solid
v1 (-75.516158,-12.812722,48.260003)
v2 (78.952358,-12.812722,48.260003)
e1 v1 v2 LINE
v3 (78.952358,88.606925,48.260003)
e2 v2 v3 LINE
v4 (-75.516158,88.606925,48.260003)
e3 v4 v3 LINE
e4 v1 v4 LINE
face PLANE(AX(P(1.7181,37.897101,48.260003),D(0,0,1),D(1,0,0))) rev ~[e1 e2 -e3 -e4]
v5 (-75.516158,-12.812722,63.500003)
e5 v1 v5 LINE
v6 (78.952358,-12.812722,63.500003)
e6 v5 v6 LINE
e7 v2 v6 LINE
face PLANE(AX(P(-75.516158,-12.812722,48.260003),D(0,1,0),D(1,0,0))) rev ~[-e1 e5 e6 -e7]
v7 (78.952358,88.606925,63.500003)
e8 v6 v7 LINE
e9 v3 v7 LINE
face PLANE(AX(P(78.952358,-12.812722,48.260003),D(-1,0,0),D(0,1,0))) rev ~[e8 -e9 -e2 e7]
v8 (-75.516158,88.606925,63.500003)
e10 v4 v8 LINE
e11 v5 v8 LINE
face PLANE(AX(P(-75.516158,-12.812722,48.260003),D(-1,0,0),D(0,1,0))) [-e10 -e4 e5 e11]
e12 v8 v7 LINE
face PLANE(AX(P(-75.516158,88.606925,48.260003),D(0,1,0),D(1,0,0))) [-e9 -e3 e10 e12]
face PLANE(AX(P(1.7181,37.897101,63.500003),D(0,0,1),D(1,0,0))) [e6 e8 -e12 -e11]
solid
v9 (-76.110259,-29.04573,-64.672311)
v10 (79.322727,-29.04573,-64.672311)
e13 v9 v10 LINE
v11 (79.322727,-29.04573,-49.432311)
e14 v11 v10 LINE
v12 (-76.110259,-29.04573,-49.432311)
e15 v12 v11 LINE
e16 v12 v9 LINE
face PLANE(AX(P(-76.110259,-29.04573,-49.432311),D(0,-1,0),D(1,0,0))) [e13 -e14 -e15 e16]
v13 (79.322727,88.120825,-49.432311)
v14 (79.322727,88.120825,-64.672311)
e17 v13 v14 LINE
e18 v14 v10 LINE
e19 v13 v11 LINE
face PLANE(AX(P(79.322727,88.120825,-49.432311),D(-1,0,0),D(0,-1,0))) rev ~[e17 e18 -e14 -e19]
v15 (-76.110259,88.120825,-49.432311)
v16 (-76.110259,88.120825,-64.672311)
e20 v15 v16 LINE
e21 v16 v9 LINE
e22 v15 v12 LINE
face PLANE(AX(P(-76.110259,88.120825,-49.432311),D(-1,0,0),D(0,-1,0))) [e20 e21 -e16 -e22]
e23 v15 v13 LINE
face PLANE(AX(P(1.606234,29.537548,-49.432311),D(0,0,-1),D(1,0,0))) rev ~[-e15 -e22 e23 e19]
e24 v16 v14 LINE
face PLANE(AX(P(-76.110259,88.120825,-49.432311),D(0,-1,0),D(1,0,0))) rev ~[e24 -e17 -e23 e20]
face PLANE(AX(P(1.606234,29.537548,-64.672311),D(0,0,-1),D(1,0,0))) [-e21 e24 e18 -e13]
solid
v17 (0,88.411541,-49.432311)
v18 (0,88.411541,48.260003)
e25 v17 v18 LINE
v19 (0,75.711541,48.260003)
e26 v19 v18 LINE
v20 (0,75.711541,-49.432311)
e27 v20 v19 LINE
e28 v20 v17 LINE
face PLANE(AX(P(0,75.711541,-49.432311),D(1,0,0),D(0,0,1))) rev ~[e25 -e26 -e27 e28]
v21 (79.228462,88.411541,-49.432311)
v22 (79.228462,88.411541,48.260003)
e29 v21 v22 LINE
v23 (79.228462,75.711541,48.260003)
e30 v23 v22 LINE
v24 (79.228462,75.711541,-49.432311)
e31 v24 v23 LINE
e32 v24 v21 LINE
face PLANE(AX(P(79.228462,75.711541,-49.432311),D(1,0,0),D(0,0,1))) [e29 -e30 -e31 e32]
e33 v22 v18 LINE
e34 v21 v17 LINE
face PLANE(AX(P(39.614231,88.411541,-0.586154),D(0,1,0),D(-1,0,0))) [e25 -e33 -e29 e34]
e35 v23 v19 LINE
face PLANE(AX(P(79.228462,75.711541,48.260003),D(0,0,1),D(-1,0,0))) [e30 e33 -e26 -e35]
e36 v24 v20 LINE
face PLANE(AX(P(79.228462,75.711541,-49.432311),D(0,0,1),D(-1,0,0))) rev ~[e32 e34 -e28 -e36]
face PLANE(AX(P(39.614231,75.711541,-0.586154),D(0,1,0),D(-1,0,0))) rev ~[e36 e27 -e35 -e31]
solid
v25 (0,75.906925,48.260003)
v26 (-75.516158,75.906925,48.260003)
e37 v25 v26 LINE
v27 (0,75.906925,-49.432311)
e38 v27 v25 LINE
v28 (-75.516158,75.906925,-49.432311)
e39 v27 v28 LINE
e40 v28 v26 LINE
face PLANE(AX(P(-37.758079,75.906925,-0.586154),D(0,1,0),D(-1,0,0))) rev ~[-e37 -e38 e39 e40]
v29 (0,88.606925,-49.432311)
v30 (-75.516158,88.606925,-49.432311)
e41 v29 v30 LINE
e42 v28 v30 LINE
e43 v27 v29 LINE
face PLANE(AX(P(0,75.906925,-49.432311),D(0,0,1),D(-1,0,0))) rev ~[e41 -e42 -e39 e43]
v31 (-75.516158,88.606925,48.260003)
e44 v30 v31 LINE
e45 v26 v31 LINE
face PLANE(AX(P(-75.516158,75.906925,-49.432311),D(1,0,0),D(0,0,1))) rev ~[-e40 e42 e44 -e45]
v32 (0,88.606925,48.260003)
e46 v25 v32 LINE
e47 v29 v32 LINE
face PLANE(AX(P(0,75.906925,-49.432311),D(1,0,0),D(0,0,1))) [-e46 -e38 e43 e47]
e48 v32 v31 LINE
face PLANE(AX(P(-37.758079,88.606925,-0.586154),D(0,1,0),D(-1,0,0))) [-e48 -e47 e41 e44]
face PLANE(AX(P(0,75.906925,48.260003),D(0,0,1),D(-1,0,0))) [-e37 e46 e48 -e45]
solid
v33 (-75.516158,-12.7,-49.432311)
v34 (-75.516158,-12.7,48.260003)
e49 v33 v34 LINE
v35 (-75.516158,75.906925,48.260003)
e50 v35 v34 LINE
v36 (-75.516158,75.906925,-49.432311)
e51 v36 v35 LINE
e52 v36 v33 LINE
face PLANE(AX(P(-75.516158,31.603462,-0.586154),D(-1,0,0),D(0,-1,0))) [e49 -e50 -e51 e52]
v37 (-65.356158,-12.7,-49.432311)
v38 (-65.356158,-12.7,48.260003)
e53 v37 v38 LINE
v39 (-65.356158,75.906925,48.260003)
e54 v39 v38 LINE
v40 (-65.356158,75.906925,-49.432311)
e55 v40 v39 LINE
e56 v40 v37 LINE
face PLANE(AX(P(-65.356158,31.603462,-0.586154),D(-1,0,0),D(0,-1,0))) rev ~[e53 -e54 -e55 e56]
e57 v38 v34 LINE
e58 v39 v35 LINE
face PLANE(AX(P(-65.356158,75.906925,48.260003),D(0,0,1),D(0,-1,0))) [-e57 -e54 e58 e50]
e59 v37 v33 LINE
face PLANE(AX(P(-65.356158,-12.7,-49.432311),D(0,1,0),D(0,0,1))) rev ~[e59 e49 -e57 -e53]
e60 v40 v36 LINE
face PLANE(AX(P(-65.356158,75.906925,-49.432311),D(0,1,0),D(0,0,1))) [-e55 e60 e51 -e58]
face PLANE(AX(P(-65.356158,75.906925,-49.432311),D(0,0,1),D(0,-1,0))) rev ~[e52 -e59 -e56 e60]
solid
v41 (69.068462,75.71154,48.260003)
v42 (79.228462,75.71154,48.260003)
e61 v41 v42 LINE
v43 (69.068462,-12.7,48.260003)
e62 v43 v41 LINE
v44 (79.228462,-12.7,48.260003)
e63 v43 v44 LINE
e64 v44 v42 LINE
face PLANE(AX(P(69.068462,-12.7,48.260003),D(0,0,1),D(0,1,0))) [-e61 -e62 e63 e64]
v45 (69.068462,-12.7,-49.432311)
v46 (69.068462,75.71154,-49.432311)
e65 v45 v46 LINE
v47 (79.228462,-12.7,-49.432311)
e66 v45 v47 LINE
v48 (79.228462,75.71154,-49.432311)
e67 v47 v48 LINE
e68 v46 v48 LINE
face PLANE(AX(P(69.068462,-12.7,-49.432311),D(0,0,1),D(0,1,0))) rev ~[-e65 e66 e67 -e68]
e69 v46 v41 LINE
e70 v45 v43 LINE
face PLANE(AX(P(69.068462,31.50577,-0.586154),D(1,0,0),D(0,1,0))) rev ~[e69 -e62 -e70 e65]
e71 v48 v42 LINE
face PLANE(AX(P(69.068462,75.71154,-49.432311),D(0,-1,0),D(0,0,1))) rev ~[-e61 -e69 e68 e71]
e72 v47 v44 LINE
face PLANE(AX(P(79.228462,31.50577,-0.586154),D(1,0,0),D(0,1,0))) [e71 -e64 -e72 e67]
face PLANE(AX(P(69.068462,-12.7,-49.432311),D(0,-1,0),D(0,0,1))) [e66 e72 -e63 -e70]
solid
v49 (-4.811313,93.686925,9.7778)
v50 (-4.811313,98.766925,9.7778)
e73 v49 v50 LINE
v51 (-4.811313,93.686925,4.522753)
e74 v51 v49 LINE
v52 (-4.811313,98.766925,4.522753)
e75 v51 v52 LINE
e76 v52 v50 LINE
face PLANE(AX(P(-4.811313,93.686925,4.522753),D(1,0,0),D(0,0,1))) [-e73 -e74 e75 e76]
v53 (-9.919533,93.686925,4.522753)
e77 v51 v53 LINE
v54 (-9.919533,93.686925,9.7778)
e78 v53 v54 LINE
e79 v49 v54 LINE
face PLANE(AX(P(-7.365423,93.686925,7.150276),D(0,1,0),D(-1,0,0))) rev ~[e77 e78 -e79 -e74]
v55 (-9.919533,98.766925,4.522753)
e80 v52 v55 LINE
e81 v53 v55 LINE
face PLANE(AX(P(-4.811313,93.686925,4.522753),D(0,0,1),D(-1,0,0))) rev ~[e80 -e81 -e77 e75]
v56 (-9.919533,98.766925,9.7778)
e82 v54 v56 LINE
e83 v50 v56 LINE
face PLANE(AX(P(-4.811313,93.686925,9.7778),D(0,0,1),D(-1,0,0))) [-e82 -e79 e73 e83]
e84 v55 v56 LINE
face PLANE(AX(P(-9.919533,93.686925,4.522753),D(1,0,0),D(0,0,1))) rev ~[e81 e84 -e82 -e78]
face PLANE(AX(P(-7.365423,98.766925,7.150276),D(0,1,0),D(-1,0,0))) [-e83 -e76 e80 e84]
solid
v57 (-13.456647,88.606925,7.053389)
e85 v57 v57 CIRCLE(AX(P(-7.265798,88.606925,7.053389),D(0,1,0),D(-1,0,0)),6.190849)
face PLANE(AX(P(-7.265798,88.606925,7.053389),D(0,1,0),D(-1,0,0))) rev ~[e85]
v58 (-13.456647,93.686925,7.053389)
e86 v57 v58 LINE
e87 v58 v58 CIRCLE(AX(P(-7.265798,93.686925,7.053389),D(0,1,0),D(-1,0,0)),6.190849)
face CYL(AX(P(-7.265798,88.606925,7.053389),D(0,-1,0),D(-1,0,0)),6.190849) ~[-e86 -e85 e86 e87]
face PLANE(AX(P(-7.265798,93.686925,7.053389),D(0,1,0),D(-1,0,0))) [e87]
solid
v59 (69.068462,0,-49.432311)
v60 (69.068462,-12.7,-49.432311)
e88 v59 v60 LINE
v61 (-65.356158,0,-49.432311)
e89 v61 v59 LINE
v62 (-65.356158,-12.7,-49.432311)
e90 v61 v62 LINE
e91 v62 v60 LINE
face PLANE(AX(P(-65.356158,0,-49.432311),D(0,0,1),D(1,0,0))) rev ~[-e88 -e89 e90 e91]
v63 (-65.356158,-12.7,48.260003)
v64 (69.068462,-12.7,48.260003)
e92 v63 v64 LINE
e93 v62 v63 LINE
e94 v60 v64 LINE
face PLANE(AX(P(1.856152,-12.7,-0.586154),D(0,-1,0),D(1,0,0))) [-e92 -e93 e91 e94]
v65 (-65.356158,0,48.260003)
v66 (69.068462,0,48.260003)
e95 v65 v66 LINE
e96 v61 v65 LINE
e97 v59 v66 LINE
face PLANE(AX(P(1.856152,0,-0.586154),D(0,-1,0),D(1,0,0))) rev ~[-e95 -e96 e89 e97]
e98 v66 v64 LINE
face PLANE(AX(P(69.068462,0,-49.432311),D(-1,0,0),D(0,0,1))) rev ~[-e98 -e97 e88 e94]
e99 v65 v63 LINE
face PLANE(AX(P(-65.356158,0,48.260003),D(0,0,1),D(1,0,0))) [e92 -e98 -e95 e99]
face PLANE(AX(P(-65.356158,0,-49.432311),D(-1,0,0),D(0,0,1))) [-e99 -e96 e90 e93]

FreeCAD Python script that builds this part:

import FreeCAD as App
import Part
import Sketcher
Q = App.Units.Quantity

doc = App.newDocument("Part")
body = doc.addObject("PartDesign::Body", "Body")

# Sketch on XZ plane
sketch1 = doc.addObject("Sketcher::SketchObject", "Sketch")
body.addObject(sketch1)
sketch1.AttachmentSupport = (doc.XZ_Plane, [""])
sketch1.MapMode = "FlatFace"
sketch1.addGeometry(Part.LineSegment(App.Vector(-65, 48, 0), App.Vector(-65, -49, 0)), False)
sketch1.addGeometry(Part.LineSegment(App.Vector(-65, -49, 0), App.Vector(69, -49, 0)), False)
sketch1.addGeometry(Part.LineSegment(App.Vector(69, -49, 0), App.Vector(69, 48, 0)), False)
sketch1.addGeometry(Part.LineSegment(App.Vector(69, 48, 0), App.Vector(-65, 48, 0)), False)
sketch1.addConstraint(Sketcher.Constraint("Coincident", 0, 2, 1, 1))
sketch1.addConstraint(Sketcher.Constraint("Coincident", 1, 2, 2, 1))
sketch1.addConstraint(Sketcher.Constraint("Coincident", 2, 2, 3, 1))
sketch1.addConstraint(Sketcher.Constraint("Coincident", 3, 2, 0, 1))
sketch1.addConstraint(Sketcher.Constraint("Vertical", 0))
sketch1.addConstraint(Sketcher.Constraint("Horizontal", 1))
sketch1.addConstraint(Sketcher.Constraint("Vertical", 2))
sketch1.addConstraint(Sketcher.Constraint("Horizontal", 3))
sketch1.addConstraint(Sketcher.Constraint("DistanceY", -1, 1, 2, 2, Q("1.9000001 in")))
sketch1.addConstraint(Sketcher.Constraint("DistanceX", 1, 1, 1, 2, Q("134.42462 mm")))
sketch1.addConstraint(Sketcher.Constraint("DistanceY", 0, 2, 0, 1, Q("97.692314 mm")))
sketch1.addConstraint(Sketcher.Constraint("DistanceX", -1, 1, 1, 2, Q("69.068462 mm")))
pad1 = doc.addObject("PartDesign::Pad", "Pad")
body.addObject(pad1)
pad1.Profile = sketch1
pad1.Length = Q("0.5 in")
body2 = doc.addObject("PartDesign::Body", "Body001")

# Sketch on YZ plane
sketch2 = doc.addObject("Sketcher::SketchObject", "Sketch001")
body2.addObject(sketch2)
sketch2.AttachmentSupport = (doc.getObject("YZ_Plane001"), [""])
sketch2.MapMode = "FlatFace"
sketch2.AttachmentOffset = App.Placement(App.Vector(0, 0, 69.068462), App.Rotation())
sketch2.addGeometry(Part.LineSegment(App.Vector(-13, 48, 0), App.Vector(-13, -49, 0)), False)
sketch2.addGeometry(Part.LineSegment(App.Vector(-13, -49, 0), App.Vector(76, -49, 0)), False)
sketch2.addGeometry(Part.LineSegment(App.Vector(76, -49, 0), App.Vector(76, 48, 0)), False)
sketch2.addGeometry(Part.LineSegment(App.Vector(76, 48, 0), App.Vector(-13, 48, 0)), False)
sketch2.addConstraint(Sketcher.Constraint("Coincident", 0, 2, 1, 1))
sketch2.addConstraint(Sketcher.Constraint("Coincident", 1, 2, 2, 1))
sketch2.addConstraint(Sketcher.Constraint("Coincident", 2, 2, 3, 1))
sketch2.addConstraint(Sketcher.Constraint("Coincident", 3, 2, 0, 1))
sketch2.addConstraint(Sketcher.Constraint("Vertical", 0))
sketch2.addConstraint(Sketcher.Constraint("Horizontal", 1))
sketch2.addConstraint(Sketcher.Constraint("Vertical", 2))
sketch2.addConstraint(Sketcher.Constraint("Horizontal", 3))
sketch2.addConstraint(Sketcher.Constraint("DistanceX", 0, 2, -1, 1, Q("0.5 in")))
sketch2.addConstraint(Sketcher.Constraint("DistanceY", -1, 1, 2, 2, Q("1.9000001 in")))
sketch2.addConstraint(Sketcher.Constraint("DistanceX", 1, 1, 1, 2, Q("88.411541 mm")))
sketch2.addConstraint(Sketcher.Constraint("DistanceY", 0, 2, 0, 1, Q("97.692314 mm")))
pad2 = doc.addObject("PartDesign::Pad", "Pad001")
body2.addObject(pad2)
pad2.Profile = sketch2
pad2.Length = Q("0.4 in")
body3 = doc.addObject("PartDesign::Body", "Body002")

# Sketch on YZ plane
sketch3 = doc.addObject("Sketcher::SketchObject", "Sketch002")
body3.addObject(sketch3)
sketch3.AttachmentSupport = (doc.getObject("YZ_Plane002"), [""])
sketch3.MapMode = "FlatFace"
sketch3.AttachmentOffset = App.Placement(App.Vector(0, 0, -65.356158), App.Rotation())
sketch3.addGeometry(Part.LineSegment(App.Vector(76, 48, 0), App.Vector(76, -49, 0)), False)
sketch3.addGeometry(Part.LineSegment(App.Vector(76, -49, 0), App.Vector(-13, -49, 0)), False)
sketch3.addGeometry(Part.LineSegment(App.Vector(-13, -49, 0), App.Vector(-13, 48, 0)), False)
sketch3.addGeometry(Part.LineSegment(App.Vector(-13, 48, 0), App.Vector(76, 48, 0)), False)
sketch3.addConstraint(Sketcher.Constraint("Coincident", 0, 2, 1, 1))
sketch3.addConstraint(Sketcher.Constraint("Coincident", 1, 2, 2, 1))
sketch3.addConstraint(Sketcher.Constraint("Coincident", 2, 2, 3, 1))
sketch3.addConstraint(Sketcher.Constraint("Coincident", 3, 2, 0, 1))
sketch3.addConstraint(Sketcher.Constraint("Vertical", 0))
sketch3.addConstraint(Sketcher.Constraint("Horizontal", 1))
sketch3.addConstraint(Sketcher.Constraint("Vertical", 2))
sketch3.addConstraint(Sketcher.Constraint("Horizontal", 3))
sketch3.addConstraint(Sketcher.Constraint("DistanceX", 1, 2, -1, 1, Q("0.5 in")))
sketch3.addConstraint(Sketcher.Constraint("DistanceY", -1, 1, 2, 2, Q("1.9000001 in")))
sketch3.addConstraint(Sketcher.Constraint("DistanceX", 1, 2, 1, 1, Q("88.606925 mm")))
sketch3.addConstraint(Sketcher.Constraint("DistanceY", 0, 2, 0, 1, Q("97.692314 mm")))
pad3 = doc.addObject("PartDesign::Pad", "Pad002")
body3.addObject(pad3)
pad3.Profile = sketch3
pad3.Length = Q("0.4 in")
pad3.Reversed = True
body4 = doc.addObject("PartDesign::Body", "Body003")

# Sketch on XZ plane
sketch4 = doc.addObject("Sketcher::SketchObject", "Sketch003")
body4.addObject(sketch4)
sketch4.AttachmentSupport = (doc.getObject("XZ_Plane003"), [""])
sketch4.MapMode = "FlatFace"
sketch4.AttachmentOffset = App.Placement(App.Vector(0, 0, -75.711541), App.Rotation())
sketch4.addGeometry(Part.LineSegment(App.Vector(79, 48, 0), App.Vector(79, -49, 0)), False)
sketch4.addGeometry(Part.LineSegment(App.Vector(79, -49, 0), App.Vector(0, -49, 0)), False)
sketch4.addGeometry(Part.LineSegment(App.Vector(0, -49, 0), App.Vector(0, 48, 0)), False)
sketch4.addGeometry(Part.LineSegment(App.Vector(0, 48, 0), App.Vector(79, 48, 0)), False)
sketch4.addConstraint(Sketcher.Constraint("Coincident", 0, 2, 1, 1))
sketch4.addConstraint(Sketcher.Constraint("Coincident", 1, 2, 2, 1))
sketch4.addConstraint(Sketcher.Constraint("Coincident", 2, 2, 3, 1))
sketch4.addConstraint(Sketcher.Constraint("Coincident", 3, 2, 0, 1))
sketch4.addConstraint(Sketcher.Constraint("Vertical", 0))
sketch4.addConstraint(Sketcher.Constraint("Horizontal", 1))
sketch4.addConstraint(Sketcher.Constraint("Vertical", 2))
sketch4.addConstraint(Sketcher.Constraint("Horizontal", 3))
sketch4.addConstraint(Sketcher.Constraint("PointOnObject", 1, 2, -2))
sketch4.addConstraint(Sketcher.Constraint("DistanceY", -1, 1, 2, 2, Q("1.9000001 in")))
sketch4.addConstraint(Sketcher.Constraint("DistanceX", 1, 2, 1, 1, Q("79.228462 mm")))
sketch4.addConstraint(Sketcher.Constraint("DistanceY", 0, 2, 0, 1, Q("97.692314 mm")))
pad4 = doc.addObject("PartDesign::Pad", "Pad003")
body4.addObject(pad4)
pad4.Profile = sketch4
pad4.Length = Q("0.5 in")
pad4.Reversed = True
body5 = doc.addObject("PartDesign::Body", "Body004")

# Sketch on XZ plane
sketch5 = doc.addObject("Sketcher::SketchObject", "Sketch004")
body5.addObject(sketch5)
sketch5.AttachmentSupport = (doc.getObject("XZ_Plane004"), [""])
sketch5.MapMode = "FlatFace"
sketch5.AttachmentOffset = App.Placement(App.Vector(0, 0, -75.906925), App.Rotation())
sketch5.addGeometry(Part.LineSegment(App.Vector(0, 48, 0), App.Vector(0, -49, 0)), False)
sketch5.addGeometry(Part.LineSegment(App.Vector(0, -49, 0), App.Vector(-76, -49, 0)), False)
sketch5.addGeometry(Part.LineSegment(App.Vector(-76, -49, 0), App.Vector(-76, 48, 0)), False)
sketch5.addGeometry(Part.LineSegment(App.Vector(-76, 48, 0), App.Vector(0, 48, 0)), False)
sketch5.addConstraint(Sketcher.Constraint("Coincident", 0, 2, 1, 1))
sketch5.addConstraint(Sketcher.Constraint("Coincident", 1, 2, 2, 1))
sketch5.addConstraint(Sketcher.Constraint("Coincident", 2, 2, 3, 1))
sketch5.addConstraint(Sketcher.Constraint("Coincident", 3, 2, 0, 1))
sketch5.addConstraint(Sketcher.Constraint("Vertical", 0))
sketch5.addConstraint(Sketcher.Constraint("Horizontal", 1))
sketch5.addConstraint(Sketcher.Constraint("Vertical", 2))
sketch5.addConstraint(Sketcher.Constraint("Horizontal", 3))
sketch5.addConstraint(Sketcher.Constraint("PointOnObject", 0, 2, -2))
sketch5.addConstraint(Sketcher.Constraint("DistanceY", -1, 1, 2, 2, Q("1.9000001 in")))
sketch5.addConstraint(Sketcher.Constraint("DistanceX", 1, 2, 1, 1, Q("75.516158 mm")))
sketch5.addConstraint(Sketcher.Constraint("DistanceY", 0, 2, 0, 1, Q("97.692314 mm")))
pad5 = doc.addObject("PartDesign::Pad", "Pad004")
body5.addObject(pad5)
pad5.Profile = sketch5
pad5.Length = Q("0.5 in")
pad5.Reversed = True
body6 = doc.addObject("PartDesign::Body", "Body005")

# Sketch on XY plane
sketch6 = doc.addObject("Sketcher::SketchObject", "Sketch005")
body6.addObject(sketch6)
sketch6.AttachmentSupport = (doc.getObject("XY_Plane005"), [""])
sketch6.MapMode = "FlatFace"
sketch6.AttachmentOffset = App.Placement(App.Vector(0, 0, 1.9000001 * 25.4), App.Rotation())
sketch6.addGeometry(Part.LineSegment(App.Vector(-76, 89, 0), App.Vector(-76, -13, 0)), False)
sketch6.addGeometry(Part.LineSegment(App.Vector(-76, -13, 0), App.Vector(79, -13, 0)), False)
sketch6.addGeometry(Part.LineSegment(App.Vector(79, -13, 0), App.Vector(79, 89, 0)), False)
sketch6.addGeometry(Part.LineSegment(App.Vector(79, 89, 0), App.Vector(-76, 89, 0)), False)
sketch6.addConstraint(Sketcher.Constraint("Coincident", 0, 2, 1, 1))
sketch6.addConstraint(Sketcher.Constraint("Coincident", 1, 2, 2, 1))
sketch6.addConstraint(Sketcher.Constraint("Coincident", 2, 2, 3, 1))
sketch6.addConstraint(Sketcher.Constraint("Coincident", 3, 2, 0, 1))
sketch6.addConstraint(Sketcher.Constraint("Vertical", 0))
sketch6.addConstraint(Sketcher.Constraint("Horizontal", 1))
sketch6.addConstraint(Sketcher.Constraint("Vertical", 2))
sketch6.addConstraint(Sketcher.Constraint("Horizontal", 3))
sketch6.addConstraint(Sketcher.Constraint("DistanceX", 1, 1, 1, 2, Q("154.468515 mm")))
sketch6.addConstraint(Sketcher.Constraint("DistanceY", 0, 2, 0, 1, Q("101.419647 mm")))
sketch6.addConstraint(Sketcher.Constraint("DistanceX", 0, 2, -1, 1, Q("75.516158 mm")))
sketch6.addConstraint(Sketcher.Constraint("DistanceY", 0, 2, -1, 1, Q("12.812722 mm")))
pad6 = doc.addObject("PartDesign::Pad", "Pad005")
body6.addObject(pad6)
pad6.Profile = sketch6
pad6.Length = Q("0.6 in")
body7 = doc.addObject("PartDesign::Body", "Body006")

# Sketch on XY plane
sketch7 = doc.addObject("Sketcher::SketchObject", "Sketch006")
body7.addObject(sketch7)
sketch7.AttachmentSupport = (doc.getObject("XY_Plane006"), [""])
sketch7.MapMode = "FlatFace"
sketch7.AttachmentOffset = App.Placement(App.Vector(0, 0, -49.432311), App.Rotation())
sketch7.addGeometry(Part.LineSegment(App.Vector(-76, -29, 0), App.Vector(-76, 88, 0)), False)
sketch7.addGeometry(Part.LineSegment(App.Vector(-76, 88, 0), App.Vector(79, 88, 0)), False)
sketch7.addGeometry(Part.LineSegment(App.Vector(79, 88, 0), App.Vector(79, -29, 0)), False)
sketch7.addGeometry(Part.LineSegment(App.Vector(79, -29, 0), App.Vector(-76, -29, 0)), False)
sketch7.addConstraint(Sketcher.Constraint("Coincident", 0, 2, 1, 1))
sketch7.addConstraint(Sketcher.Constraint("Coincident", 1, 2, 2, 1))
sketch7.addConstraint(Sketcher.Constraint("Coincident", 2, 2, 3, 1))
sketch7.addConstraint(Sketcher.Constraint("Coincident", 3, 2, 0, 1))
sketch7.addConstraint(Sketcher.Constraint("Vertical", 0))
sketch7.addConstraint(Sketcher.Constraint("Horizontal", 1))
sketch7.addConstraint(Sketcher.Constraint("Vertical", 2))
sketch7.addConstraint(Sketcher.Constraint("Horizontal", 3))
sketch7.addConstraint(Sketcher.Constraint("DistanceX", 1, 1, 1, 2, Q("155.432985 mm")))
sketch7.addConstraint(Sketcher.Constraint("DistanceY", 0, 1, 0, 2, Q("117.166555 mm")))
sketch7.addConstraint(Sketcher.Constraint("DistanceX", 0, 2, -1, 1, Q("76.110259 mm")))
sketch7.addConstraint(Sketcher.Constraint("DistanceY", 2, 2, -1, 1, Q("29.04573 mm")))
pad7 = doc.addObject("PartDesign::Pad", "Pad006")
body7.addObject(pad7)
pad7.Profile = sketch7
pad7.Length = Q("0.6 in")
pad7.Reversed = True
body8 = doc.addObject("PartDesign::Body", "Body007")

# Sketch on XZ plane
sketch8 = doc.addObject("Sketcher::SketchObject", "Sketch007")
body8.addObject(sketch8)
sketch8.AttachmentSupport = (doc.getObject("XZ_Plane007"), [""])
sketch8.MapMode = "FlatFace"
sketch8.AttachmentOffset = App.Placement(App.Vector(0, 0, -88.606925), App.Rotation())
sketch8.addGeometry(Part.Circle(App.Vector(-7, 7, 0), App.Vector(0, 0, 1), 6), False)
sketch8.addConstraint(Sketcher.Constraint("Diameter", 0, Q("12.381698 mm")))
sketch8.addConstraint(Sketcher.Constraint("DistanceX", 0, 3, -1, 1, Q("7.265798 mm")))
sketch8.addConstraint(Sketcher.Constraint("DistanceY", -1, 1, 0, 3, Q("7.053389 mm")))
pad8 = doc.addObject("PartDesign::Pad", "Pad007")
body8.addObject(pad8)
pad8.Profile = sketch8
pad8.Length = Q("0.2 in")
pad8.Reversed = True
body9 = doc.addObject("PartDesign::Body", "Body008")

# Sketch on XZ plane
sketch9 = doc.addObject("Sketcher::SketchObject", "Sketch008")
body9.addObject(sketch9)
sketch9.AttachmentSupport = (doc.getObject("XZ_Plane008"), [""])
sketch9.MapMode = "FlatFace"
sketch9.AttachmentOffset = App.Placement(App.Vector(0, 0, -93.686925), App.Rotation())
sketch9.addGeometry(Part.LineSegment(App.Vector(-5, 10, 0), App.Vector(-5, 5, 0)), False)
sketch9.addGeometry(Part.LineSegment(App.Vector(-5, 5, 0), App.Vector(-10, 5, 0)), False)
sketch9.addGeometry(Part.LineSegment(App.Vector(-10, 5, 0), App.Vector(-10, 10, 0)), False)
sketch9.addGeometry(Part.LineSegment(App.Vector(-10, 10, 0), App.Vector(-5, 10, 0)), False)
sketch9.addConstraint(Sketcher.Constraint("Coincident", 0, 2, 1, 1))
sketch9.addConstraint(Sketcher.Constraint("Coincident", 1, 2, 2, 1))
sketch9.addConstraint(Sketcher.Constraint("Coincident", 2, 2, 3, 1))
sketch9.addConstraint(Sketcher.Constraint("Coincident", 3, 2, 0, 1))
sketch9.addConstraint(Sketcher.Constraint("Vertical", 0))
sketch9.addConstraint(Sketcher.Constraint("Horizontal", 1))
sketch9.addConstraint(Sketcher.Constraint("Vertical", 2))
sketch9.addConstraint(Sketcher.Constraint("Horizontal", 3))
sketch9.addConstraint(Sketcher.Constraint("DistanceX", 1, 2, 1, 1, Q("5.108219 mm")))
sketch9.addConstraint(Sketcher.Constraint("DistanceY", -1, 1, 2, 2, Q("9.7778 mm")))
sketch9.addConstraint(Sketcher.Constraint("DistanceY", 0, 2, 0, 1, Q("5.255047 mm")))
sketch9.addConstraint(Sketcher.Constraint("DistanceX", 0, 2, -1, 1, Q("4.811313 mm")))
pad9 = doc.addObject("PartDesign::Pad", "Pad008")
body9.addObject(pad9)
pad9.Profile = sketch9
pad9.Length = Q("0.2 in")
pad9.Reversed = True

doc.recompute()
